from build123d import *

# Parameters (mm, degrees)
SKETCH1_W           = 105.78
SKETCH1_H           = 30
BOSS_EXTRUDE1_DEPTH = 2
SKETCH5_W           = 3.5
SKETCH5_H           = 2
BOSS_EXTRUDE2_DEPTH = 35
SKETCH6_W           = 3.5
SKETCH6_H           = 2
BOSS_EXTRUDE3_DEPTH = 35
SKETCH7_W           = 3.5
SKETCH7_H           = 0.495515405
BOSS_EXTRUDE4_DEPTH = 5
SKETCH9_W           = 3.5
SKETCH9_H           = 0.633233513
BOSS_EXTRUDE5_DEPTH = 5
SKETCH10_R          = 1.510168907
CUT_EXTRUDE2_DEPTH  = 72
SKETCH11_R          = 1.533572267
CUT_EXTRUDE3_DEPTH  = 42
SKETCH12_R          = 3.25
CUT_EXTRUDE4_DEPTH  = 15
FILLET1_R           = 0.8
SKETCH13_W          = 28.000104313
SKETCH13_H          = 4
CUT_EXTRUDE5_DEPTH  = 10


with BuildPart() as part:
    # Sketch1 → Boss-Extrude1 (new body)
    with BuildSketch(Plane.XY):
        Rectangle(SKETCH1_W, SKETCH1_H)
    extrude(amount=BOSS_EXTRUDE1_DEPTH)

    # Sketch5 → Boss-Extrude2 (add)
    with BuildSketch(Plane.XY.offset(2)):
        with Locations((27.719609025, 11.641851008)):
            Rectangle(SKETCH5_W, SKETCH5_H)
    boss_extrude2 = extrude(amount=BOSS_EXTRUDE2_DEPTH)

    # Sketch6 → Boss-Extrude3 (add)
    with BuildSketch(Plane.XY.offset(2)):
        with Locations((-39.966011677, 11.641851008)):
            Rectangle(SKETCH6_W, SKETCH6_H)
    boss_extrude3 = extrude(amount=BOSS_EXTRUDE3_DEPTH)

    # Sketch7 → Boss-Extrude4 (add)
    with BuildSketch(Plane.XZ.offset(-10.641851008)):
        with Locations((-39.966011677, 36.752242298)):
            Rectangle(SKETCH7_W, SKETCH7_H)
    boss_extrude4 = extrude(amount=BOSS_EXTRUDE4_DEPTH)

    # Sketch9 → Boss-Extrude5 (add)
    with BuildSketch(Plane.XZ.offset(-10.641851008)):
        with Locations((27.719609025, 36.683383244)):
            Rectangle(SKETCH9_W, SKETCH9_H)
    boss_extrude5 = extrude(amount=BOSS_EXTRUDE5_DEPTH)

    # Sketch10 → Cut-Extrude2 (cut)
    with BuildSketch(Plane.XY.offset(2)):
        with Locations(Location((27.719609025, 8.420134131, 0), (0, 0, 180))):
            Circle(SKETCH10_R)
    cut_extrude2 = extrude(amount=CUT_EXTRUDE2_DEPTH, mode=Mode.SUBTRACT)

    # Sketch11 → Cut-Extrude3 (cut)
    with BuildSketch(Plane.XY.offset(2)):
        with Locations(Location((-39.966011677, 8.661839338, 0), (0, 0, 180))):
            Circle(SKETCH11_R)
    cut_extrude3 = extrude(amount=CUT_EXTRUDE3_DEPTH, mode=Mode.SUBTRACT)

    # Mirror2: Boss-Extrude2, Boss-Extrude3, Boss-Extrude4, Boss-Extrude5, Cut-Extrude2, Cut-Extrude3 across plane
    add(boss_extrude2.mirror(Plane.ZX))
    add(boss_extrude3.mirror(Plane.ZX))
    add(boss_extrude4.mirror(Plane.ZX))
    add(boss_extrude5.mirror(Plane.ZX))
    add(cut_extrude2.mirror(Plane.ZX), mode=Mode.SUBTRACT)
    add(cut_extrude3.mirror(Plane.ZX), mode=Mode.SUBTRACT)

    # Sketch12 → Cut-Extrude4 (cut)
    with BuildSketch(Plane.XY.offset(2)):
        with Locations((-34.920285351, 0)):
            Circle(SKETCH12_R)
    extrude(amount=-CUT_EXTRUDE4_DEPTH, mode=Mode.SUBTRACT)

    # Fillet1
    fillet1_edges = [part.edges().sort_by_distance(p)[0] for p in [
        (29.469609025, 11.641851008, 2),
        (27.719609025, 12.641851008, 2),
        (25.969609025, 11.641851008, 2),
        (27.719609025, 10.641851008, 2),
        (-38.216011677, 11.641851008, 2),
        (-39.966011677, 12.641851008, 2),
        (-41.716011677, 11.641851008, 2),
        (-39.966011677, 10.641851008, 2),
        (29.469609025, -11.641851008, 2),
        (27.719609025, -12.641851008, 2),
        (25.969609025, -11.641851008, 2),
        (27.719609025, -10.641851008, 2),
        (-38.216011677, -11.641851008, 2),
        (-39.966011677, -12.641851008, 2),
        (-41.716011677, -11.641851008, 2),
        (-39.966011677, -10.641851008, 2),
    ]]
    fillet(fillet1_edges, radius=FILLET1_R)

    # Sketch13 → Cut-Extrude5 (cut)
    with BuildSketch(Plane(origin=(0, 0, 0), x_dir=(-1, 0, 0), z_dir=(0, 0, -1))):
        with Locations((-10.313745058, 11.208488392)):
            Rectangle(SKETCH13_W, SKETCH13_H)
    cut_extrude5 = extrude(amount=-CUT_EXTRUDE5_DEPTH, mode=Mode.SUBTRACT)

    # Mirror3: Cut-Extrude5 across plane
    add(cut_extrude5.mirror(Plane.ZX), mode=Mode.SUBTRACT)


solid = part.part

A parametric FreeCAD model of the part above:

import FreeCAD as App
import Part
import Sketcher

V = App.Vector
Q = App.Units.Quantity


def edges_at(feature, points):
    """Names of the edges that pass closest to the given points."""
    edges = feature.Shape.Edges
    near = lambda p: min(range(len(edges)), key=lambda i: edges[i].distToShape(Part.Vertex(*p))[0])
    return sorted({f"Edge{near(p) + 1}" for p in points})

doc = App.newDocument("Part")
body = doc.addObject("PartDesign::Body", "Body")

# Sketch on XY plane
sketch1 = body.newObject("Sketcher::SketchObject", "Sketch")
sketch1.AttachmentSupport = (doc.getObject("XY_Plane"), [""])
sketch1.MapMode = "FlatFace"
sketch1.addGeometry(Part.LineSegment(V(-53, 15, 0), V(-53, -15, 0)), False)
sketch1.addGeometry(Part.LineSegment(V(-53, -15, 0), V(53, -15, 0)), False)
sketch1.addGeometry(Part.LineSegment(V(53, -15, 0), V(53, 15, 0)), False)
sketch1.addGeometry(Part.LineSegment(V(53, 15, 0), V(-53, 15, 0)), False)
sketch1.addConstraint(Sketcher.Constraint("Coincident", 0, 2, 1, 1))
sketch1.addConstraint(Sketcher.Constraint("Coincident", 1, 2, 2, 1))
sketch1.addConstraint(Sketcher.Constraint("Coincident", 2, 2, 3, 1))
sketch1.addConstraint(Sketcher.Constraint("Coincident", 3, 2, 0, 1))
sketch1.addConstraint(Sketcher.Constraint("Vertical", 0))
sketch1.addConstraint(Sketcher.Constraint("Horizontal", 1))
sketch1.addConstraint(Sketcher.Constraint("Vertical", 2))
sketch1.addConstraint(Sketcher.Constraint("Horizontal", 3))
sketch1.addConstraint(Sketcher.Constraint("Symmetric", 0, 2, 2, 2, -1, 1))
sketch1.addConstraint(Sketcher.Constraint("DistanceY", 0, 2, 0, 1, Q("30 mm")))
sketch1.addConstraint(Sketcher.Constraint("DistanceX", 1, 1, 1, 2, Q("105.78 mm")))
pad1 = body.newObject("PartDesign::Pad", "Pad")
pad1.Profile = sketch1
pad1.Length = 2

# Sketch on XY plane
sketch2 = body.newObject("Sketcher::SketchObject", "Sketch001")
sketch2.AttachmentSupport = (doc.getObject("XY_Plane"), [""])
sketch2.MapMode = "FlatFace"
sketch2.AttachmentOffset = App.Placement(V(0, 0, 2), App.Rotation())
sketch2.addGeometry(Part.LineSegment(V(26, 12.6, 0), V(26, 10.6, 0)), False)
sketch2.addGeometry(Part.LineSegment(V(26, 10.6, 0), V(29.5, 10.6, 0)), False)
sketch2.addGeometry(Part.LineSegment(V(29.5, 10.6, 0), V(29.5, 12.6, 0)), False)
sketch2.addGeometry(Part.LineSegment(V(29.5, 12.6, 0), V(26, 12.6, 0)), False)
sketch2.addConstraint(Sketcher.Constraint("Coincident", 0, 2, 1, 1))
sketch2.addConstraint(Sketcher.Constraint("Coincident", 1, 2, 2, 1))
sketch2.addConstraint(Sketcher.Constraint("Coincident", 2, 2, 3, 1))
sketch2.addConstraint(Sketcher.Constraint("Coincident", 3, 2, 0, 1))
sketch2.addConstraint(Sketcher.Constraint("Vertical", 0))
sketch2.addConstraint(Sketcher.Constraint("Horizontal", 1))
sketch2.addConstraint(Sketcher.Constraint("Vertical", 2))
sketch2.addConstraint(Sketcher.Constraint("Horizontal", 3))
sketch2.addConstraint(Sketcher.Constraint("DistanceY", 0, 2, 0, 1, Q("2 mm")))
sketch2.addConstraint(Sketcher.Constraint("DistanceX", 1, 1, 1, 2, Q("3.5 mm")))
sketch2.addConstraint(Sketcher.Constraint("DistanceX", -1, 1, 0, 2, Q("25.969609 mm")))
sketch2.addConstraint(Sketcher.Constraint("DistanceY", -1, 1, 0, 2, Q("10.641851 mm")))
pad2 = body.newObject("PartDesign::Pad", "Pad001")
pad2.Profile = sketch2
pad2.Length = 35

# Sketch on XY plane
sketch3 = body.newObject("Sketcher::SketchObject", "Sketch002")
sketch3.AttachmentSupport = (doc.getObject("XY_Plane"), [""])
sketch3.MapMode = "FlatFace"
sketch3.AttachmentOffset = App.Placement(V(0, 0, 2), App.Rotation())
sketch3.addGeometry(Part.LineSegment(V(-41.7, 12.6, 0), V(-41.7, 10.6, 0)), False)
sketch3.addGeometry(Part.LineSegment(V(-41.7, 10.6, 0), V(-38.2, 10.6, 0)), False)
sketch3.addGeometry(Part.LineSegment(V(-38.2, 10.6, 0), V(-38.2, 12.6, 0)), False)
sketch3.addGeometry(Part.LineSegment(V(-38.2, 12.6, 0), V(-41.7, 12.6, 0)), False)
sketch3.addConstraint(Sketcher.Constraint("Coincident", 0, 2, 1, 1))
sketch3.addConstraint(Sketcher.Constraint("Coincident", 1, 2, 2, 1))
sketch3.addConstraint(Sketcher.Constraint("Coincident", 2, 2, 3, 1))
sketch3.addConstraint(Sketcher.Constraint("Coincident", 3, 2, 0, 1))
sketch3.addConstraint(Sketcher.Constraint("Vertical", 0))
sketch3.addConstraint(Sketcher.Constraint("Horizontal", 1))
sketch3.addConstraint(Sketcher.Constraint("Vertical", 2))
sketch3.addConstraint(Sketcher.Constraint("Horizontal", 3))
sketch3.addConstraint(Sketcher.Constraint("DistanceY", 0, 2, 0, 1, Q("2 mm")))
sketch3.addConstraint(Sketcher.Constraint("DistanceX", 1, 1, 1, 2, Q("3.5 mm")))
sketch3.addConstraint(Sketcher.Constraint("DistanceX", 0, 2, -1, 1, Q("41.716012 mm")))
sketch3.addConstraint(Sketcher.Constraint("DistanceY", -1, 1, 0, 2, Q("10.641851 mm")))
pad3 = body.newObject("PartDesign::Pad", "Pad002")
pad3.Profile = sketch3
pad3.Length = 35

# Sketch on XZ plane
sketch4 = body.newObject("Sketcher::SketchObject", "Sketch003")
sketch4.AttachmentSupport = (doc.getObject("XZ_Plane"), [""])
sketch4.MapMode = "FlatFace"
sketch4.AttachmentOffset = App.Placement(V(0, 0, -10.641851), App.Rotation())
sketch4.addGeometry(Part.LineSegment(V(-41.72, 37, 0), V(-41.72, 36.5, 0)), False)
sketch4.addGeometry(Part.LineSegment(V(-41.72, 36.5, 0), V(-38.22, 36.5, 0)), False)
sketch4.addGeometry(Part.LineSegment(V(-38.22, 36.5, 0), V(-38.22, 37, 0)), False)
sketch4.addGeometry(Part.LineSegment(V(-38.22, 37, 0), V(-41.72, 37, 0)), False)
sketch4.addConstraint(Sketcher.Constraint("Coincident", 0, 2, 1, 1))
sketch4.addConstraint(Sketcher.Constraint("Coincident", 1, 2, 2, 1))
sketch4.addConstraint(Sketcher.Constraint("Coincident", 2, 2, 3, 1))
sketch4.addConstraint(Sketcher.Constraint("Coincident", 3, 2, 0, 1))
sketch4.addConstraint(Sketcher.Constraint("Vertical", 0))
sketch4.addConstraint(Sketcher.Constraint("Horizontal", 1))
sketch4.addConstraint(Sketcher.Constraint("Vertical", 2))
sketch4.addConstraint(Sketcher.Constraint("Horizontal", 3))
sketch4.addConstraint(Sketcher.Constraint("DistanceX", 1, 1, 1, 2, Q("3.5 mm")))
sketch4.addConstraint(Sketcher.Constraint("DistanceY", -1, 1, 2, 2, Q("37 mm")))
sketch4.addConstraint(Sketcher.Constraint("DistanceY", 0, 2, 0, 1, Q("0.495515 mm")))
sketch4.addConstraint(Sketcher.Constraint("DistanceX", 0, 2, -1, 1, Q("41.716012 mm")))
pad4 = body.newObject("PartDesign::Pad", "Pad003")
pad4.Profile = sketch4
pad4.Length = 5

# Sketch on XZ plane
sketch5 = body.newObject("Sketcher::SketchObject", "Sketch004")
sketch5.AttachmentSupport = (doc.getObject("XZ_Plane"), [""])
sketch5.MapMode = "FlatFace"
sketch5.AttachmentOffset = App.Placement(V(0, 0, -10.641851), App.Rotation())
sketch5.addGeometry(Part.LineSegment(V(26, 37, 0), V(26, 36.4, 0)), False)
sketch5.addGeometry(Part.LineSegment(V(26, 36.4, 0), V(29.5, 36.4, 0)), False)
sketch5.addGeometry(Part.LineSegment(V(29.5, 36.4, 0), V(29.5, 37, 0)), False)
sketch5.addGeometry(Part.LineSegment(V(29.5, 37, 0), V(26, 37, 0)), False)
sketch5.addConstraint(Sketcher.Constraint("Coincident", 0, 2, 1, 1))
sketch5.addConstraint(Sketcher.Constraint("Coincident", 1, 2, 2, 1))
sketch5.addConstraint(Sketcher.Constraint("Coincident", 2, 2, 3, 1))
sketch5.addConstraint(Sketcher.Constraint("Coincident", 3, 2, 0, 1))
sketch5.addConstraint(Sketcher.Constraint("Vertical", 0))
sketch5.addConstraint(Sketcher.Constraint("Horizontal", 1))
sketch5.addConstraint(Sketcher.Constraint("Vertical", 2))
sketch5.addConstraint(Sketcher.Constraint("Horizontal", 3))
sketch5.addConstraint(Sketcher.Constraint("DistanceX", 1, 1, 1, 2, Q("3.5 mm")))
sketch5.addConstraint(Sketcher.Constraint("DistanceY", -1, 1, 2, 2, Q("37 mm")))
sketch5.addConstraint(Sketcher.Constraint("DistanceY", 0, 2, 0, 1, Q("0.633234 mm")))
sketch5.addConstraint(Sketcher.Constraint("DistanceX", -1, 1, 0, 2, Q("25.969609 mm")))
pad5 = body.newObject("PartDesign::Pad", "Pad004")
pad5.Profile = sketch5
pad5.Length = 5

# Sketch on XY plane
sketch6 = body.newObject("Sketcher::SketchObject", "Sketch005")
sketch6.AttachmentSupport = (doc.getObject("XY_Plane"), [""])
sketch6.MapMode = "FlatFace"
sketch6.AttachmentOffset = App.Placement(V(0, 0, 2), App.Rotation())
sketch6.addGeometry(Part.Circle(V(27.7, 8.4, 0), V(0, 0, 1), 1.5), False)
sketch6.addConstraint(Sketcher.Constraint("Diameter", 0, Q("3.020338 mm")))
sketch6.addConstraint(Sketcher.Constraint("DistanceX", -1, 1, 0, 3, Q("27.719609 mm")))
sketch6.addConstraint(Sketcher.Constraint("DistanceY", -1, 1, 0, 3, Q("8.420134 mm")))
pocket1 = body.newObject("PartDesign::Pocket", "Pocket")
pocket1.Profile = sketch6
pocket1.Length = 72
pocket1.Reversed = True

# Sketch on XY plane
sketch7 = body.newObject("Sketcher::SketchObject", "Sketch006")
sketch7.AttachmentSupport = (doc.getObject("XY_Plane"), [""])
sketch7.MapMode = "FlatFace"
sketch7.AttachmentOffset = App.Placement(V(0, 0, 2), App.Rotation())
sketch7.addGeometry(Part.Circle(V(-40, 8.7, 0), V(0, 0, 1), 1.5), False)
sketch7.addConstraint(Sketcher.Constraint("Diameter", 0, Q("3.067145 mm")))
sketch7.addConstraint(Sketcher.Constraint("DistanceX", 0, 3, -1, 1, Q("39.966012 mm")))
sketch7.addConstraint(Sketcher.Constraint("DistanceY", -1, 1, 0, 3, Q("8.661839 mm")))
pocket2 = body.newObject("PartDesign::Pocket", "Pocket001")
pocket2.Profile = sketch7
pocket2.Length = 42
pocket2.Reversed = True
doc.recompute()

mirrored = body.newObject("PartDesign::Mirrored", "Mirrored")
mirrored.Originals = [pad2, pad3, pad4, pad5, pocket1, pocket2]
mirrored.MirrorPlane = (doc.getObject("XZ_Plane"), [""])
body.Tip = mirrored

# Sketch on XY plane
sketch8 = body.newObject("Sketcher::SketchObject", "Sketch007")
sketch8.AttachmentSupport = (doc.getObject("XY_Plane"), [""])
sketch8.MapMode = "FlatFace"
sketch8.AttachmentOffset = App.Placement(V(0, 0, 2), App.Rotation())
sketch8.addGeometry(Part.Circle(V(-34.9, 0, 0), V(0, 0, 1), 3.2), False)
sketch8.addConstraint(Sketcher.Constraint("PointOnObject", 0, 3, -1))
sketch8.addConstraint(Sketcher.Constraint("Diameter", 0, Q("6.5 mm")))
sketch8.addConstraint(Sketcher.Constraint("DistanceX", 0, 3, -1, 1, Q("34.920285 mm")))
pocket3 = body.newObject("PartDesign::Pocket", "Pocket002")
pocket3.Profile = sketch8
pocket3.Length = 15
doc.recompute()

fillet = body.newObject("PartDesign::Fillet", "Fillet")
fillet.Base = (pocket3, edges_at(pocket3, [
    (29.47, 11.642, 2),
    (27.72, 12.642, 2),
    (25.97, 11.642, 2),
    (27.72, 10.642, 2),
    (-38.216, 11.642, 2),
    (-39.966, 12.642, 2),
    (-41.716, 11.642, 2),
    (-39.966, 10.642, 2),
    (29.47, -11.642, 2),
    (27.72, -12.642, 2),
    (25.97, -11.642, 2),
    (27.72, -10.642, 2),
    (-38.216, -11.642, 2),
    (-39.966, -12.642, 2),
    (-41.716, -11.642, 2),
    (-39.966, -10.642, 2),
]))
fillet.Radius = 0.8

# Sketch on XY plane
sketch9 = body.newObject("Sketcher::SketchObject", "Sketch008")
sketch9.AttachmentSupport = (doc.getObject("XY_Plane"), [""])
sketch9.MapMode = "FlatFace"
sketch9.addGeometry(Part.LineSegment(V(24.3, 13.2, 0), V(24.3, 9.2, 0)), False)
sketch9.addGeometry(Part.LineSegment(V(24.3, 9.2, 0), V(-3.7, 9.2, 0)), False)
sketch9.addGeometry(Part.LineSegment(V(-3.7, 9.2, 0), V(-3.7, 13.2, 0)), False)
sketch9.addGeometry(Part.LineSegment(V(-3.7, 13.2, 0), V(24.3, 13.2, 0)), False)
sketch9.addConstraint(Sketcher.Constraint("Coincident", 0, 2, 1, 1))
sketch9.addConstraint(Sketcher.Constraint("Coincident", 1, 2, 2, 1))
sketch9.addConstraint(Sketcher.Constraint("Coincident", 2, 2, 3, 1))
sketch9.addConstraint(Sketcher.Constraint("Coincident", 3, 2, 0, 1))
sketch9.addConstraint(Sketcher.Constraint("Vertical", 0))
sketch9.addConstraint(Sketcher.Constraint("Horizontal", 1))
sketch9.addConstraint(Sketcher.Constraint("Vertical", 2))
sketch9.addConstraint(Sketcher.Constraint("Horizontal", 3))
sketch9.addConstraint(Sketcher.Constraint("DistanceY", 0, 2, 0, 1, Q("4 mm")))
sketch9.addConstraint(Sketcher.Constraint("DistanceX", 1, 2, 1, 1, Q("28.000104 mm")))
sketch9.addConstraint(Sketcher.Constraint("DistanceY", -1, 1, 0, 2, Q("9.208488 mm")))
sketch9.addConstraint(Sketcher.Constraint("DistanceX", -1, 1, 0, 2, Q("24.313797 mm")))
pocket4 = body.newObject("PartDesign::Pocket", "Pocket003")
pocket4.Profile = sketch9
pocket4.Length = 10
pocket4.Reversed = True
doc.recompute()

mirrored2 = body.newObject("PartDesign::Mirrored", "Mirrored001")
mirrored2.Originals = [pocket4]
mirrored2.MirrorPlane = (doc.getObject("XZ_Plane"), [""])
body.Tip = mirrored2

doc.recompute()
